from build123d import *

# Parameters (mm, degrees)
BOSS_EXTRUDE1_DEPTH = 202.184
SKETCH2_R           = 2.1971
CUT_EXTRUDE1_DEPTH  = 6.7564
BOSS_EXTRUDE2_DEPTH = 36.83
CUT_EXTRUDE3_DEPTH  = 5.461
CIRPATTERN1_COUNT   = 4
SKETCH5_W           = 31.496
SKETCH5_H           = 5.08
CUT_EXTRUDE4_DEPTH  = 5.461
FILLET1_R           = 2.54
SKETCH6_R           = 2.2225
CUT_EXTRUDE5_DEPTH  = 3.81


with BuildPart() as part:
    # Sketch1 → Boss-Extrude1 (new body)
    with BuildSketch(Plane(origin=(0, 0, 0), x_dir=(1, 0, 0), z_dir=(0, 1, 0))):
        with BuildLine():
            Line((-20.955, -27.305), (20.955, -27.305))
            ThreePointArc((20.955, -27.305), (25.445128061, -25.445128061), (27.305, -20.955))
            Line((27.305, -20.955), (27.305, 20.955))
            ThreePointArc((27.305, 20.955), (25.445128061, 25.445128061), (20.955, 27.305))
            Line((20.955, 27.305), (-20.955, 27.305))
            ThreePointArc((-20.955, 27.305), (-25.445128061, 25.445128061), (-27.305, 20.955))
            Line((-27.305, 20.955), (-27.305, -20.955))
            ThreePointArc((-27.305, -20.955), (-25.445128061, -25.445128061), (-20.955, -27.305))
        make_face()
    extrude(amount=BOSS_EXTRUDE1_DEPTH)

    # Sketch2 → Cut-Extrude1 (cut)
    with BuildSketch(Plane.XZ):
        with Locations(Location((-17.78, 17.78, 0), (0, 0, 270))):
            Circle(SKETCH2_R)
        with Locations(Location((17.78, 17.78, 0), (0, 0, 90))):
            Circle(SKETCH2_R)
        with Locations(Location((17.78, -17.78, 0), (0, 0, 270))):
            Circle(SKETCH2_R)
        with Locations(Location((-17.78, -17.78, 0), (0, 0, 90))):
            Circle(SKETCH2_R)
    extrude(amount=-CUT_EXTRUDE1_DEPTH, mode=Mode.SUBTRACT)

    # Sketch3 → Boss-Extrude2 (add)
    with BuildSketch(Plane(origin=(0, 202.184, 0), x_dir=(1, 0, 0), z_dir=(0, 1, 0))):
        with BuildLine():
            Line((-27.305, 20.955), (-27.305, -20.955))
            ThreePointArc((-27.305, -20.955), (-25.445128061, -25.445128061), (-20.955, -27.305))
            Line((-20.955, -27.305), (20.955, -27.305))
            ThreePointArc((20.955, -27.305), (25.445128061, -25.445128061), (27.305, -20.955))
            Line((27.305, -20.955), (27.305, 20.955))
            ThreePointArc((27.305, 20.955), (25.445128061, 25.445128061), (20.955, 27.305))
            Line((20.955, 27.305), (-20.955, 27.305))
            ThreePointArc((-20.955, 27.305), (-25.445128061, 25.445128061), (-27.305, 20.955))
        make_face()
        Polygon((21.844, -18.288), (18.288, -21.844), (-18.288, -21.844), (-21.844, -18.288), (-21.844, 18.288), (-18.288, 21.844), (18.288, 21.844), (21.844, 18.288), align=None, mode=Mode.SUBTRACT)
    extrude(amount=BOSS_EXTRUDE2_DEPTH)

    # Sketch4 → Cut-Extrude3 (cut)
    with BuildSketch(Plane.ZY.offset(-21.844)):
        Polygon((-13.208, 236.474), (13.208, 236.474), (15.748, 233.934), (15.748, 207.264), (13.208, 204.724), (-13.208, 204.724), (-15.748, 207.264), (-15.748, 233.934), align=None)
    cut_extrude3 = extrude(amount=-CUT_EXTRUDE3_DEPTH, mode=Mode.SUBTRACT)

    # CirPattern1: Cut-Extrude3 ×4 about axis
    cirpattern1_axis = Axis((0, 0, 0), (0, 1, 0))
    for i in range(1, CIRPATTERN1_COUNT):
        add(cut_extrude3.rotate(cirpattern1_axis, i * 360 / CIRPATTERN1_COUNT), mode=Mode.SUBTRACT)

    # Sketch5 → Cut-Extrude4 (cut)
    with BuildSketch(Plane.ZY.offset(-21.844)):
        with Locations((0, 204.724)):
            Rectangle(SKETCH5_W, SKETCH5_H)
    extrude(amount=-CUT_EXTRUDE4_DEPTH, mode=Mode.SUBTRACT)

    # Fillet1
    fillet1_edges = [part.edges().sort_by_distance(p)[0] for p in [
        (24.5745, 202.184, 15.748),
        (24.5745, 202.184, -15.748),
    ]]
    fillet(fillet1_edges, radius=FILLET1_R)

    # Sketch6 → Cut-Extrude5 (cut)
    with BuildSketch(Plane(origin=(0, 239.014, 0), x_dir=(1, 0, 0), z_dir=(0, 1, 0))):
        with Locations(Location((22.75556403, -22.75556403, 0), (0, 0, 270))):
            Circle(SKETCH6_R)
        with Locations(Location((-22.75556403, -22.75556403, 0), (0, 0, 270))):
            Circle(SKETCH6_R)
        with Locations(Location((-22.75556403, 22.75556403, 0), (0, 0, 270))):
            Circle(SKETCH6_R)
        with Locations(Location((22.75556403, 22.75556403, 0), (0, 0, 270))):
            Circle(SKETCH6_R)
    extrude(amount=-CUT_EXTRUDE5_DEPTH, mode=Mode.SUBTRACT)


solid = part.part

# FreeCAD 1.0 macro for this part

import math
import FreeCAD as App
import Part
import Sketcher
Q = App.Units.Quantity


def edges_at(feature, points):
    """Names of the edges that pass closest to the given points."""
    edges = feature.Shape.Edges
    near = lambda p: min(range(len(edges)), key=lambda i: edges[i].distToShape(Part.Vertex(*p))[0])
    return sorted({f"Edge{near(p) + 1}" for p in points})


def add_polygon(sketch, points):
    """Adds a closed chain of lines whose ends are joined by coincident constraints."""
    first, n = sketch.GeometryCount, len(points)
    for a, b in zip(points, points[1:] + points[:1]):
        sketch.addGeometry(Part.LineSegment(App.Vector(*a, 0), App.Vector(*b, 0)), False)
    for i in range(n):
        sketch.addConstraint(Sketcher.Constraint("Coincident", first + i, 2, first + (i + 1) % n, 1))

doc = App.newDocument("Part")
params = doc.addObject("Spreadsheet::Sheet", "Params")
for row, (alias, value) in enumerate([
    ("sketch1_radius", "0.25 in"),
    ("sketch1_width", "1.65 in"),
    ("pad1_length", "7.96 in"),
    ("sketch2_diameter", "0.173 in"),
    ("pocket1_length", "0.266 in"),
    ("sketch3_radius", "0.25 in"),
    ("sketch3_width", "1.65 in"),
    ("sketch3_width2", "1.44 in"),
    ("pad2_length", "1.45 in"),
    ("sketch4_width", "1.05 in"),
    ("sketch4_height", "1.04 in"),
    ("pocket2_length", "0.215 in"),
    ("sketch5_width", "0.2 in"),
    ("sketch5_height", "1.24 in"),
    ("pocket3_length", "0.215 in"),
    ("fillet_radius", "0.1 in"),
    ("sketch6_diameter", "0.175 in"),
    ("pocket4_length", "0.15 in"),
], start=1):
    params.set(f"A{row}", alias)
    params.set(f"B{row}", "=" + value)
    params.setAlias(f"B{row}", alias)

body = doc.addObject("PartDesign::Body", "Body")

# Sketch on XZ plane
sketch1 = doc.addObject("Sketcher::SketchObject", "Sketch")
body.addObject(sketch1)
sketch1.AttachmentSupport = (doc.XZ_Plane, [""])
sketch1.MapMode = "FlatFace"
sketch1.addGeometry(Part.LineSegment(App.Vector(-21, 27, 0), App.Vector(21, 27, 0)), False)
sketch1.addGeometry(Part.ArcOfCircle(Part.Circle(App.Vector(21, 21, 0), App.Vector(0, 0, 1), 6), math.radians(0), math.radians(90)), False)
sketch1.addGeometry(Part.LineSegment(App.Vector(27, 21, 0), App.Vector(27, -21, 0)), False)
sketch1.addGeometry(Part.ArcOfCircle(Part.Circle(App.Vector(21, -21, 0), App.Vector(0, 0, 1), 6), math.radians(-90), math.radians(0)), False)
sketch1.addGeometry(Part.LineSegment(App.Vector(21, -27, 0), App.Vector(-21, -27, 0)), False)
sketch1.addGeometry(Part.ArcOfCircle(Part.Circle(App.Vector(-21, -21, 0), App.Vector(0, 0, 1), 6), math.radians(180), math.radians(270)), False)
sketch1.addGeometry(Part.LineSegment(App.Vector(-27, -21, 0), App.Vector(-27, 21, 0)), False)
sketch1.addGeometry(Part.ArcOfCircle(Part.Circle(App.Vector(-21, 21, 0), App.Vector(0, 0, 1), 6), math.radians(90), math.radians(180)), False)
sketch1.addConstraint(Sketcher.Constraint("Tangent", 0, 2, 1, 2))
sketch1.addConstraint(Sketcher.Constraint("Tangent", 1, 1, 2, 1))
sketch1.addConstraint(Sketcher.Constraint("Tangent", 2, 2, 3, 2))
sketch1.addConstraint(Sketcher.Constraint("Tangent", 3, 1, 4, 1))
sketch1.addConstraint(Sketcher.Constraint("Tangent", 4, 2, 5, 2))
sketch1.addConstraint(Sketcher.Constraint("Tangent", 5, 1, 6, 1))
sketch1.addConstraint(Sketcher.Constraint("Tangent", 6, 2, 7, 2))
sketch1.addConstraint(Sketcher.Constraint("Tangent", 7, 1, 0, 1))
sketch1.addConstraint(Sketcher.Constraint("Horizontal", 0))
sketch1.addConstraint(Sketcher.Constraint("Vertical", 2))
sketch1.addConstraint(Sketcher.Constraint("Horizontal", 4))
sketch1.addConstraint(Sketcher.Constraint("Vertical", 6))
sketch1.addConstraint(Sketcher.Constraint("Equal", 1, 3))
sketch1.addConstraint(Sketcher.Constraint("Equal", 3, 5))
sketch1.addConstraint(Sketcher.Constraint("Equal", 5, 7))
sketch1.addConstraint(Sketcher.Constraint("Symmetric", 1, 3, 5, 3, -1, 1))
sketch1.addConstraint(Sketcher.Constraint("Equal", 4, 2))
sketch1.addConstraint(Sketcher.Constraint("Radius", 1, Q("0.25 in")))
sketch1.addConstraint(Sketcher.Constraint("DistanceX", 0, 1, 0, 2, Q("1.65 in")))
sketch1.setExpression("Constraints[17]", "Params.sketch1_radius")
sketch1.setExpression("Constraints[18]", "Params.sketch1_width")
pad1 = doc.addObject("PartDesign::Pad", "Pad")
body.addObject(pad1)
pad1.Profile = sketch1
pad1.setExpression("Length", "Params.pad1_length")
pad1.Reversed = True

# Sketch on XZ plane
sketch2 = doc.addObject("Sketcher::SketchObject", "Sketch001")
body.addObject(sketch2)
sketch2.AttachmentSupport = (doc.XZ_Plane, [""])
sketch2.MapMode = "FlatFace"
sketch2.addGeometry(Part.Circle(App.Vector(-17.8, 17.8, 0), App.Vector(0, 0, 1), 2.2), False)
sketch2.addGeometry(Part.Circle(App.Vector(17.8, 17.8, 0), App.Vector(0, 0, 1), 2.2), False)
sketch2.addGeometry(Part.Circle(App.Vector(17.8, -17.8, 0), App.Vector(0, 0, 1), 2.2), False)
sketch2.addGeometry(Part.Circle(App.Vector(-17.8, -17.8, 0), App.Vector(0, 0, 1), 2.2), False)
sketch2.addConstraint(Sketcher.Constraint("Equal", 0, 1))
sketch2.addConstraint(Sketcher.Constraint("Equal", 1, 2))
sketch2.addConstraint(Sketcher.Constraint("Equal", 2, 3))
sketch2.addConstraint(Sketcher.Constraint("Symmetric", 0, 3, 2, 3, -1, 1))
sketch2.addConstraint(Sketcher.Constraint("Symmetric", 1, 3, 3, 3, -1, 1))
sketch2.addConstraint(Sketcher.Constraint("Symmetric", 0, 3, 1, 3, -2))
sketch2.addConstraint(Sketcher.Constraint("Diameter", 0, Q("0.173 in")))
sketch2.addConstraint(Sketcher.Constraint("DistanceX", 0, 3, -1, 1, Q("0.7 in")))
sketch2.addConstraint(Sketcher.Constraint("DistanceY", -1, 1, 0, 3, Q("0.7 in")))
sketch2.setExpression("Constraints[6]", "Params.sketch2_diameter")
pocket1 = doc.addObject("PartDesign::Pocket", "Pocket")
body.addObject(pocket1)
pocket1.Profile = sketch2
pocket1.setExpression("Length", "Params.pocket1_length")

# Sketch on XZ plane
sketch3 = doc.addObject("Sketcher::SketchObject", "Sketch002")
body.addObject(sketch3)
sketch3.AttachmentSupport = (doc.XZ_Plane, [""])
sketch3.MapMode = "FlatFace"
sketch3.AttachmentOffset = App.Placement(App.Vector(0, 0, -7.96 * 25.4), App.Rotation())
sketch3.addGeometry(Part.LineSegment(App.Vector(-27, -21, 0), App.Vector(-27, 21, 0)), False)  # 0
sketch3.addGeometry(Part.ArcOfCircle(Part.Circle(App.Vector(-21, 21, 0), App.Vector(0, 0, 1), 6), math.radians(90), math.radians(180)), False)  # 1
sketch3.addGeometry(Part.LineSegment(App.Vector(-21, 27, 0), App.Vector(21, 27, 0)), False)  # 2
sketch3.addGeometry(Part.ArcOfCircle(Part.Circle(App.Vector(21, 21, 0), App.Vector(0, 0, 1), 6), math.radians(0), math.radians(90)), False)  # 3
sketch3.addGeometry(Part.LineSegment(App.Vector(27, 21, 0), App.Vector(27, -21, 0)), False)  # 4
sketch3.addGeometry(Part.ArcOfCircle(Part.Circle(App.Vector(21, -21, 0), App.Vector(0, 0, 1), 6), math.radians(-90), math.radians(0)), False)  # 5
sketch3.addGeometry(Part.LineSegment(App.Vector(21, -27, 0), App.Vector(-21, -27, 0)), False)  # 6
sketch3.addGeometry(Part.ArcOfCircle(Part.Circle(App.Vector(-21, -21, 0), App.Vector(0, 0, 1), 6), math.radians(180), math.radians(270)), False)  # 7
add_polygon(sketch3, [(22, -18), (22, 18), (18, 22), (-18, 22), (-22, 18), (-22, -18), (-18, -22), (18, -22)])  # lines 8-15
sketch3.addConstraint(Sketcher.Constraint("Tangent", 0, 2, 1, 2))
sketch3.addConstraint(Sketcher.Constraint("Tangent", 1, 1, 2, 1))
sketch3.addConstraint(Sketcher.Constraint("Tangent", 2, 2, 3, 2))
sketch3.addConstraint(Sketcher.Constraint("Tangent", 3, 1, 4, 1))
sketch3.addConstraint(Sketcher.Constraint("Tangent", 4, 2, 5, 2))
sketch3.addConstraint(Sketcher.Constraint("Tangent", 5, 1, 6, 1))
sketch3.addConstraint(Sketcher.Constraint("Tangent", 6, 2, 7, 2))
sketch3.addConstraint(Sketcher.Constraint("Tangent", 7, 1, 0, 1))
sketch3.addConstraint(Sketcher.Constraint("Vertical", 0))
sketch3.addConstraint(Sketcher.Constraint("Horizontal", 2))
sketch3.addConstraint(Sketcher.Constraint("Vertical", 4))
sketch3.addConstraint(Sketcher.Constraint("Horizontal", 6))
sketch3.addConstraint(Sketcher.Constraint("Vertical", 8))
sketch3.addConstraint(Sketcher.Constraint("Horizontal", 10))
sketch3.addConstraint(Sketcher.Constraint("Vertical", 12))
sketch3.addConstraint(Sketcher.Constraint("Horizontal", 14))
sketch3.addConstraint(Sketcher.Constraint("Equal", 1, 3))
sketch3.addConstraint(Sketcher.Constraint("Equal", 3, 5))
sketch3.addConstraint(Sketcher.Constraint("Equal", 5, 7))
sketch3.addConstraint(Sketcher.Constraint("Symmetric", 1, 3, 5, 3, -1, 1))
sketch3.addConstraint(Sketcher.Constraint("Symmetric", 8, 2, 12, 2, -1, 1))
sketch3.addConstraint(Sketcher.Constraint("Symmetric", 9, 2, 13, 2, -1, 1))
sketch3.addConstraint(Sketcher.Constraint("Perpendicular", 9, 11))
sketch3.addConstraint(Sketcher.Constraint("Perpendicular", 13, 15))
sketch3.addConstraint(Sketcher.Constraint("Horizontal", 8, 2, 11, 2))
sketch3.addConstraint(Sketcher.Constraint("Horizontal", 12, 2, 15, 2))
sketch3.addConstraint(Sketcher.Constraint("Vertical", 10, 2, 13, 2))
sketch3.addConstraint(Sketcher.Constraint("Equal", 6, 0))
sketch3.addConstraint(Sketcher.Constraint("Equal", 14, 8))
sketch3.addConstraint(Sketcher.Constraint("Radius", 1, Q("0.25 in")))
sketch3.addConstraint(Sketcher.Constraint("DistanceX", 2, 1, 2, 2, Q("1.65 in")))
sketch3.addConstraint(Sketcher.Constraint("DistanceX", 10, 2, 10, 1, Q("1.44 in")))
sketch3.addConstraint(Sketcher.Constraint("DistanceX", -1, 1, 8, 2, Q("0.86 in")))
sketch3.setExpression("Constraints[37]", "Params.sketch3_radius")
sketch3.setExpression("Constraints[38]", "Params.sketch3_width")
sketch3.setExpression("Constraints[39]", "Params.sketch3_width2")
pad2 = doc.addObject("PartDesign::Pad", "Pad001")
body.addObject(pad2)
pad2.Profile = sketch3
pad2.setExpression("Length", "Params.pad2_length")
pad2.Reversed = True

# Sketch on YZ plane
sketch4 = doc.addObject("Sketcher::SketchObject", "Sketch003")
body.addObject(sketch4)
sketch4.AttachmentSupport = (doc.YZ_Plane, [""])
sketch4.MapMode = "FlatFace"
sketch4.AttachmentOffset = App.Placement(App.Vector(0, 0, 0.86 * 25.4), App.Rotation())
add_polygon(sketch4, [(236.5, 13.2), (236.5, -13.2), (233.9, -15.7), (207.3, -15.7), (204.7, -13.2), (204.7, 13.2), (207.3, 15.7), (233.9, 15.7)])  # lines 0-7
sketch4.addConstraint(Sketcher.Constraint("Vertical", 0))
sketch4.addConstraint(Sketcher.Constraint("Horizontal", 2))
sketch4.addConstraint(Sketcher.Constraint("Vertical", 4))
sketch4.addConstraint(Sketcher.Constraint("Horizontal", 6))
sketch4.addConstraint(Sketcher.Constraint("Symmetric", 2, 2, 5, 2, -1))
sketch4.addConstraint(Sketcher.Constraint("Perpendicular", 1, 3))
sketch4.addConstraint(Sketcher.Constraint("Perpendicular", 3, 5))
sketch4.addConstraint(Sketcher.Constraint("Perpendicular", 5, 7))
sketch4.addConstraint(Sketcher.Constraint("Horizontal", 0, 2, 3, 2))
sketch4.addConstraint(Sketcher.Constraint("Horizontal", 4, 2, 7, 2))
sketch4.addConstraint(Sketcher.Constraint("Vertical", 1, 2, 6, 2))
sketch4.addConstraint(Sketcher.Constraint("DistanceX", 2, 2, 2, 1, Q("1.05 in")))
sketch4.addConstraint(Sketcher.Constraint("DistanceY", 0, 2, 0, 1, Q("1.04 in")))
sketch4.addConstraint(Sketcher.Constraint("DistanceX", 1, 2, 0, 2, Q("0.1 in")))
sketch4.addConstraint(Sketcher.Constraint("DistanceX", -1, 1, 0, 2, Q("9.31 in")))
sketch4.setExpression("Constraints[19]", "Params.sketch4_width")
sketch4.setExpression("Constraints[20]", "Params.sketch4_height")
pocket2 = doc.addObject("PartDesign::Pocket", "Pocket001")
body.addObject(pocket2)
pocket2.Profile = sketch4
pocket2.setExpression("Length", "Params.pocket2_length")
pocket2.Reversed = True
doc.recompute()

polarpattern = doc.addObject("PartDesign::PolarPattern", "PolarPattern")
body.addObject(polarpattern)
polarpattern.Originals = [pocket2]
polarpattern.Axis = (doc.Y_Axis, [""])
polarpattern.Angle = 360
polarpattern.Occurrences = 4
body.Tip = polarpattern

# Sketch on YZ plane
sketch5 = doc.addObject("Sketcher::SketchObject", "Sketch004")
body.addObject(sketch5)
sketch5.AttachmentSupport = (doc.YZ_Plane, [""])
sketch5.MapMode = "FlatFace"
sketch5.AttachmentOffset = App.Placement(App.Vector(0, 0, 0.86 * 25.4), App.Rotation())
add_polygon(sketch5, [(207, -16), (202, -16), (202, 16), (207, 16)])  # lines 0-3
sketch5.addConstraint(Sketcher.Constraint("Horizontal", 0))
sketch5.addConstraint(Sketcher.Constraint("Vertical", 1))
sketch5.addConstraint(Sketcher.Constraint("Horizontal", 2))
sketch5.addConstraint(Sketcher.Constraint("Vertical", 3))
sketch5.addConstraint(Sketcher.Constraint("DistanceX", 0, 2, 0, 1, Q("0.2 in")))
sketch5.addConstraint(Sketcher.Constraint("DistanceY", 1, 1, 1, 2, Q("1.24 in")))
sketch5.addConstraint(Sketcher.Constraint("DistanceX", -1, 1, 0, 2, Q("7.96 in")))
sketch5.addConstraint(Sketcher.Constraint("DistanceY", 0, 2, -1, 1, Q("0.62 in")))
sketch5.setExpression("Constraints[8]", "Params.sketch5_width")
sketch5.setExpression("Constraints[9]", "Params.sketch5_height")
pocket3 = doc.addObject("PartDesign::Pocket", "Pocket002")
body.addObject(pocket3)
pocket3.Profile = sketch5
pocket3.setExpression("Length", "Params.pocket3_length")
pocket3.Reversed = True
doc.recompute()

fillet = doc.addObject("PartDesign::Fillet", "Fillet")
body.addObject(fillet)
fillet.Base = (pocket3, edges_at(pocket3, [(24.575, 202.184, 15.748), (24.575, 202.184, -15.748)]))
fillet.setExpression("Radius", "Params.fillet_radius")

# Sketch on XZ plane
sketch6 = doc.addObject("Sketcher::SketchObject", "Sketch005")
body.addObject(sketch6)
sketch6.AttachmentSupport = (doc.XZ_Plane, [""])
sketch6.MapMode = "FlatFace"
sketch6.AttachmentOffset = App.Placement(App.Vector(0, 0, -9.41 * 25.4), App.Rotation())
sketch6.addGeometry(Part.Circle(App.Vector(22.8, 22.8, 0), App.Vector(0, 0, 1), 2.2), False)
sketch6.addGeometry(Part.Circle(App.Vector(-22.8, 22.8, 0), App.Vector(0, 0, 1), 2.2), False)
sketch6.addGeometry(Part.Circle(App.Vector(-22.8, -22.8, 0), App.Vector(0, 0, 1), 2.2), False)
sketch6.addGeometry(Part.Circle(App.Vector(22.8, -22.8, 0), App.Vector(0, 0, 1), 2.2), False)
sketch6.addConstraint(Sketcher.Constraint("Equal", 0, 1))
sketch6.addConstraint(Sketcher.Constraint("Equal", 1, 2))
sketch6.addConstraint(Sketcher.Constraint("Equal", 2, 3))
sketch6.addConstraint(Sketcher.Constraint("Symmetric", 0, 3, 2, 3, -1, 1))
sketch6.addConstraint(Sketcher.Constraint("Symmetric", 1, 3, 3, 3, -1, 1))
sketch6.addConstraint(Sketcher.Constraint("Symmetric", 0, 3, 1, 3, -2))
sketch6.addConstraint(Sketcher.Constraint("Diameter", 0, Q("0.175 in")))
sketch6.addConstraint(Sketcher.Constraint("DistanceX", 1, 3, 0, 3, Q("45.511128 mm")))
sketch6.addConstraint(Sketcher.Constraint("DistanceY", 2, 3, 1, 3, Q("45.511128 mm")))
sketch6.setExpression("Constraints[6]", "Params.sketch6_diameter")
pocket4 = doc.addObject("PartDesign::Pocket", "Pocket003")
body.addObject(pocket4)
pocket4.Profile = sketch6
pocket4.setExpression("Length", "Params.pocket4_length")
pocket4.Reversed = True

doc.recompute()
